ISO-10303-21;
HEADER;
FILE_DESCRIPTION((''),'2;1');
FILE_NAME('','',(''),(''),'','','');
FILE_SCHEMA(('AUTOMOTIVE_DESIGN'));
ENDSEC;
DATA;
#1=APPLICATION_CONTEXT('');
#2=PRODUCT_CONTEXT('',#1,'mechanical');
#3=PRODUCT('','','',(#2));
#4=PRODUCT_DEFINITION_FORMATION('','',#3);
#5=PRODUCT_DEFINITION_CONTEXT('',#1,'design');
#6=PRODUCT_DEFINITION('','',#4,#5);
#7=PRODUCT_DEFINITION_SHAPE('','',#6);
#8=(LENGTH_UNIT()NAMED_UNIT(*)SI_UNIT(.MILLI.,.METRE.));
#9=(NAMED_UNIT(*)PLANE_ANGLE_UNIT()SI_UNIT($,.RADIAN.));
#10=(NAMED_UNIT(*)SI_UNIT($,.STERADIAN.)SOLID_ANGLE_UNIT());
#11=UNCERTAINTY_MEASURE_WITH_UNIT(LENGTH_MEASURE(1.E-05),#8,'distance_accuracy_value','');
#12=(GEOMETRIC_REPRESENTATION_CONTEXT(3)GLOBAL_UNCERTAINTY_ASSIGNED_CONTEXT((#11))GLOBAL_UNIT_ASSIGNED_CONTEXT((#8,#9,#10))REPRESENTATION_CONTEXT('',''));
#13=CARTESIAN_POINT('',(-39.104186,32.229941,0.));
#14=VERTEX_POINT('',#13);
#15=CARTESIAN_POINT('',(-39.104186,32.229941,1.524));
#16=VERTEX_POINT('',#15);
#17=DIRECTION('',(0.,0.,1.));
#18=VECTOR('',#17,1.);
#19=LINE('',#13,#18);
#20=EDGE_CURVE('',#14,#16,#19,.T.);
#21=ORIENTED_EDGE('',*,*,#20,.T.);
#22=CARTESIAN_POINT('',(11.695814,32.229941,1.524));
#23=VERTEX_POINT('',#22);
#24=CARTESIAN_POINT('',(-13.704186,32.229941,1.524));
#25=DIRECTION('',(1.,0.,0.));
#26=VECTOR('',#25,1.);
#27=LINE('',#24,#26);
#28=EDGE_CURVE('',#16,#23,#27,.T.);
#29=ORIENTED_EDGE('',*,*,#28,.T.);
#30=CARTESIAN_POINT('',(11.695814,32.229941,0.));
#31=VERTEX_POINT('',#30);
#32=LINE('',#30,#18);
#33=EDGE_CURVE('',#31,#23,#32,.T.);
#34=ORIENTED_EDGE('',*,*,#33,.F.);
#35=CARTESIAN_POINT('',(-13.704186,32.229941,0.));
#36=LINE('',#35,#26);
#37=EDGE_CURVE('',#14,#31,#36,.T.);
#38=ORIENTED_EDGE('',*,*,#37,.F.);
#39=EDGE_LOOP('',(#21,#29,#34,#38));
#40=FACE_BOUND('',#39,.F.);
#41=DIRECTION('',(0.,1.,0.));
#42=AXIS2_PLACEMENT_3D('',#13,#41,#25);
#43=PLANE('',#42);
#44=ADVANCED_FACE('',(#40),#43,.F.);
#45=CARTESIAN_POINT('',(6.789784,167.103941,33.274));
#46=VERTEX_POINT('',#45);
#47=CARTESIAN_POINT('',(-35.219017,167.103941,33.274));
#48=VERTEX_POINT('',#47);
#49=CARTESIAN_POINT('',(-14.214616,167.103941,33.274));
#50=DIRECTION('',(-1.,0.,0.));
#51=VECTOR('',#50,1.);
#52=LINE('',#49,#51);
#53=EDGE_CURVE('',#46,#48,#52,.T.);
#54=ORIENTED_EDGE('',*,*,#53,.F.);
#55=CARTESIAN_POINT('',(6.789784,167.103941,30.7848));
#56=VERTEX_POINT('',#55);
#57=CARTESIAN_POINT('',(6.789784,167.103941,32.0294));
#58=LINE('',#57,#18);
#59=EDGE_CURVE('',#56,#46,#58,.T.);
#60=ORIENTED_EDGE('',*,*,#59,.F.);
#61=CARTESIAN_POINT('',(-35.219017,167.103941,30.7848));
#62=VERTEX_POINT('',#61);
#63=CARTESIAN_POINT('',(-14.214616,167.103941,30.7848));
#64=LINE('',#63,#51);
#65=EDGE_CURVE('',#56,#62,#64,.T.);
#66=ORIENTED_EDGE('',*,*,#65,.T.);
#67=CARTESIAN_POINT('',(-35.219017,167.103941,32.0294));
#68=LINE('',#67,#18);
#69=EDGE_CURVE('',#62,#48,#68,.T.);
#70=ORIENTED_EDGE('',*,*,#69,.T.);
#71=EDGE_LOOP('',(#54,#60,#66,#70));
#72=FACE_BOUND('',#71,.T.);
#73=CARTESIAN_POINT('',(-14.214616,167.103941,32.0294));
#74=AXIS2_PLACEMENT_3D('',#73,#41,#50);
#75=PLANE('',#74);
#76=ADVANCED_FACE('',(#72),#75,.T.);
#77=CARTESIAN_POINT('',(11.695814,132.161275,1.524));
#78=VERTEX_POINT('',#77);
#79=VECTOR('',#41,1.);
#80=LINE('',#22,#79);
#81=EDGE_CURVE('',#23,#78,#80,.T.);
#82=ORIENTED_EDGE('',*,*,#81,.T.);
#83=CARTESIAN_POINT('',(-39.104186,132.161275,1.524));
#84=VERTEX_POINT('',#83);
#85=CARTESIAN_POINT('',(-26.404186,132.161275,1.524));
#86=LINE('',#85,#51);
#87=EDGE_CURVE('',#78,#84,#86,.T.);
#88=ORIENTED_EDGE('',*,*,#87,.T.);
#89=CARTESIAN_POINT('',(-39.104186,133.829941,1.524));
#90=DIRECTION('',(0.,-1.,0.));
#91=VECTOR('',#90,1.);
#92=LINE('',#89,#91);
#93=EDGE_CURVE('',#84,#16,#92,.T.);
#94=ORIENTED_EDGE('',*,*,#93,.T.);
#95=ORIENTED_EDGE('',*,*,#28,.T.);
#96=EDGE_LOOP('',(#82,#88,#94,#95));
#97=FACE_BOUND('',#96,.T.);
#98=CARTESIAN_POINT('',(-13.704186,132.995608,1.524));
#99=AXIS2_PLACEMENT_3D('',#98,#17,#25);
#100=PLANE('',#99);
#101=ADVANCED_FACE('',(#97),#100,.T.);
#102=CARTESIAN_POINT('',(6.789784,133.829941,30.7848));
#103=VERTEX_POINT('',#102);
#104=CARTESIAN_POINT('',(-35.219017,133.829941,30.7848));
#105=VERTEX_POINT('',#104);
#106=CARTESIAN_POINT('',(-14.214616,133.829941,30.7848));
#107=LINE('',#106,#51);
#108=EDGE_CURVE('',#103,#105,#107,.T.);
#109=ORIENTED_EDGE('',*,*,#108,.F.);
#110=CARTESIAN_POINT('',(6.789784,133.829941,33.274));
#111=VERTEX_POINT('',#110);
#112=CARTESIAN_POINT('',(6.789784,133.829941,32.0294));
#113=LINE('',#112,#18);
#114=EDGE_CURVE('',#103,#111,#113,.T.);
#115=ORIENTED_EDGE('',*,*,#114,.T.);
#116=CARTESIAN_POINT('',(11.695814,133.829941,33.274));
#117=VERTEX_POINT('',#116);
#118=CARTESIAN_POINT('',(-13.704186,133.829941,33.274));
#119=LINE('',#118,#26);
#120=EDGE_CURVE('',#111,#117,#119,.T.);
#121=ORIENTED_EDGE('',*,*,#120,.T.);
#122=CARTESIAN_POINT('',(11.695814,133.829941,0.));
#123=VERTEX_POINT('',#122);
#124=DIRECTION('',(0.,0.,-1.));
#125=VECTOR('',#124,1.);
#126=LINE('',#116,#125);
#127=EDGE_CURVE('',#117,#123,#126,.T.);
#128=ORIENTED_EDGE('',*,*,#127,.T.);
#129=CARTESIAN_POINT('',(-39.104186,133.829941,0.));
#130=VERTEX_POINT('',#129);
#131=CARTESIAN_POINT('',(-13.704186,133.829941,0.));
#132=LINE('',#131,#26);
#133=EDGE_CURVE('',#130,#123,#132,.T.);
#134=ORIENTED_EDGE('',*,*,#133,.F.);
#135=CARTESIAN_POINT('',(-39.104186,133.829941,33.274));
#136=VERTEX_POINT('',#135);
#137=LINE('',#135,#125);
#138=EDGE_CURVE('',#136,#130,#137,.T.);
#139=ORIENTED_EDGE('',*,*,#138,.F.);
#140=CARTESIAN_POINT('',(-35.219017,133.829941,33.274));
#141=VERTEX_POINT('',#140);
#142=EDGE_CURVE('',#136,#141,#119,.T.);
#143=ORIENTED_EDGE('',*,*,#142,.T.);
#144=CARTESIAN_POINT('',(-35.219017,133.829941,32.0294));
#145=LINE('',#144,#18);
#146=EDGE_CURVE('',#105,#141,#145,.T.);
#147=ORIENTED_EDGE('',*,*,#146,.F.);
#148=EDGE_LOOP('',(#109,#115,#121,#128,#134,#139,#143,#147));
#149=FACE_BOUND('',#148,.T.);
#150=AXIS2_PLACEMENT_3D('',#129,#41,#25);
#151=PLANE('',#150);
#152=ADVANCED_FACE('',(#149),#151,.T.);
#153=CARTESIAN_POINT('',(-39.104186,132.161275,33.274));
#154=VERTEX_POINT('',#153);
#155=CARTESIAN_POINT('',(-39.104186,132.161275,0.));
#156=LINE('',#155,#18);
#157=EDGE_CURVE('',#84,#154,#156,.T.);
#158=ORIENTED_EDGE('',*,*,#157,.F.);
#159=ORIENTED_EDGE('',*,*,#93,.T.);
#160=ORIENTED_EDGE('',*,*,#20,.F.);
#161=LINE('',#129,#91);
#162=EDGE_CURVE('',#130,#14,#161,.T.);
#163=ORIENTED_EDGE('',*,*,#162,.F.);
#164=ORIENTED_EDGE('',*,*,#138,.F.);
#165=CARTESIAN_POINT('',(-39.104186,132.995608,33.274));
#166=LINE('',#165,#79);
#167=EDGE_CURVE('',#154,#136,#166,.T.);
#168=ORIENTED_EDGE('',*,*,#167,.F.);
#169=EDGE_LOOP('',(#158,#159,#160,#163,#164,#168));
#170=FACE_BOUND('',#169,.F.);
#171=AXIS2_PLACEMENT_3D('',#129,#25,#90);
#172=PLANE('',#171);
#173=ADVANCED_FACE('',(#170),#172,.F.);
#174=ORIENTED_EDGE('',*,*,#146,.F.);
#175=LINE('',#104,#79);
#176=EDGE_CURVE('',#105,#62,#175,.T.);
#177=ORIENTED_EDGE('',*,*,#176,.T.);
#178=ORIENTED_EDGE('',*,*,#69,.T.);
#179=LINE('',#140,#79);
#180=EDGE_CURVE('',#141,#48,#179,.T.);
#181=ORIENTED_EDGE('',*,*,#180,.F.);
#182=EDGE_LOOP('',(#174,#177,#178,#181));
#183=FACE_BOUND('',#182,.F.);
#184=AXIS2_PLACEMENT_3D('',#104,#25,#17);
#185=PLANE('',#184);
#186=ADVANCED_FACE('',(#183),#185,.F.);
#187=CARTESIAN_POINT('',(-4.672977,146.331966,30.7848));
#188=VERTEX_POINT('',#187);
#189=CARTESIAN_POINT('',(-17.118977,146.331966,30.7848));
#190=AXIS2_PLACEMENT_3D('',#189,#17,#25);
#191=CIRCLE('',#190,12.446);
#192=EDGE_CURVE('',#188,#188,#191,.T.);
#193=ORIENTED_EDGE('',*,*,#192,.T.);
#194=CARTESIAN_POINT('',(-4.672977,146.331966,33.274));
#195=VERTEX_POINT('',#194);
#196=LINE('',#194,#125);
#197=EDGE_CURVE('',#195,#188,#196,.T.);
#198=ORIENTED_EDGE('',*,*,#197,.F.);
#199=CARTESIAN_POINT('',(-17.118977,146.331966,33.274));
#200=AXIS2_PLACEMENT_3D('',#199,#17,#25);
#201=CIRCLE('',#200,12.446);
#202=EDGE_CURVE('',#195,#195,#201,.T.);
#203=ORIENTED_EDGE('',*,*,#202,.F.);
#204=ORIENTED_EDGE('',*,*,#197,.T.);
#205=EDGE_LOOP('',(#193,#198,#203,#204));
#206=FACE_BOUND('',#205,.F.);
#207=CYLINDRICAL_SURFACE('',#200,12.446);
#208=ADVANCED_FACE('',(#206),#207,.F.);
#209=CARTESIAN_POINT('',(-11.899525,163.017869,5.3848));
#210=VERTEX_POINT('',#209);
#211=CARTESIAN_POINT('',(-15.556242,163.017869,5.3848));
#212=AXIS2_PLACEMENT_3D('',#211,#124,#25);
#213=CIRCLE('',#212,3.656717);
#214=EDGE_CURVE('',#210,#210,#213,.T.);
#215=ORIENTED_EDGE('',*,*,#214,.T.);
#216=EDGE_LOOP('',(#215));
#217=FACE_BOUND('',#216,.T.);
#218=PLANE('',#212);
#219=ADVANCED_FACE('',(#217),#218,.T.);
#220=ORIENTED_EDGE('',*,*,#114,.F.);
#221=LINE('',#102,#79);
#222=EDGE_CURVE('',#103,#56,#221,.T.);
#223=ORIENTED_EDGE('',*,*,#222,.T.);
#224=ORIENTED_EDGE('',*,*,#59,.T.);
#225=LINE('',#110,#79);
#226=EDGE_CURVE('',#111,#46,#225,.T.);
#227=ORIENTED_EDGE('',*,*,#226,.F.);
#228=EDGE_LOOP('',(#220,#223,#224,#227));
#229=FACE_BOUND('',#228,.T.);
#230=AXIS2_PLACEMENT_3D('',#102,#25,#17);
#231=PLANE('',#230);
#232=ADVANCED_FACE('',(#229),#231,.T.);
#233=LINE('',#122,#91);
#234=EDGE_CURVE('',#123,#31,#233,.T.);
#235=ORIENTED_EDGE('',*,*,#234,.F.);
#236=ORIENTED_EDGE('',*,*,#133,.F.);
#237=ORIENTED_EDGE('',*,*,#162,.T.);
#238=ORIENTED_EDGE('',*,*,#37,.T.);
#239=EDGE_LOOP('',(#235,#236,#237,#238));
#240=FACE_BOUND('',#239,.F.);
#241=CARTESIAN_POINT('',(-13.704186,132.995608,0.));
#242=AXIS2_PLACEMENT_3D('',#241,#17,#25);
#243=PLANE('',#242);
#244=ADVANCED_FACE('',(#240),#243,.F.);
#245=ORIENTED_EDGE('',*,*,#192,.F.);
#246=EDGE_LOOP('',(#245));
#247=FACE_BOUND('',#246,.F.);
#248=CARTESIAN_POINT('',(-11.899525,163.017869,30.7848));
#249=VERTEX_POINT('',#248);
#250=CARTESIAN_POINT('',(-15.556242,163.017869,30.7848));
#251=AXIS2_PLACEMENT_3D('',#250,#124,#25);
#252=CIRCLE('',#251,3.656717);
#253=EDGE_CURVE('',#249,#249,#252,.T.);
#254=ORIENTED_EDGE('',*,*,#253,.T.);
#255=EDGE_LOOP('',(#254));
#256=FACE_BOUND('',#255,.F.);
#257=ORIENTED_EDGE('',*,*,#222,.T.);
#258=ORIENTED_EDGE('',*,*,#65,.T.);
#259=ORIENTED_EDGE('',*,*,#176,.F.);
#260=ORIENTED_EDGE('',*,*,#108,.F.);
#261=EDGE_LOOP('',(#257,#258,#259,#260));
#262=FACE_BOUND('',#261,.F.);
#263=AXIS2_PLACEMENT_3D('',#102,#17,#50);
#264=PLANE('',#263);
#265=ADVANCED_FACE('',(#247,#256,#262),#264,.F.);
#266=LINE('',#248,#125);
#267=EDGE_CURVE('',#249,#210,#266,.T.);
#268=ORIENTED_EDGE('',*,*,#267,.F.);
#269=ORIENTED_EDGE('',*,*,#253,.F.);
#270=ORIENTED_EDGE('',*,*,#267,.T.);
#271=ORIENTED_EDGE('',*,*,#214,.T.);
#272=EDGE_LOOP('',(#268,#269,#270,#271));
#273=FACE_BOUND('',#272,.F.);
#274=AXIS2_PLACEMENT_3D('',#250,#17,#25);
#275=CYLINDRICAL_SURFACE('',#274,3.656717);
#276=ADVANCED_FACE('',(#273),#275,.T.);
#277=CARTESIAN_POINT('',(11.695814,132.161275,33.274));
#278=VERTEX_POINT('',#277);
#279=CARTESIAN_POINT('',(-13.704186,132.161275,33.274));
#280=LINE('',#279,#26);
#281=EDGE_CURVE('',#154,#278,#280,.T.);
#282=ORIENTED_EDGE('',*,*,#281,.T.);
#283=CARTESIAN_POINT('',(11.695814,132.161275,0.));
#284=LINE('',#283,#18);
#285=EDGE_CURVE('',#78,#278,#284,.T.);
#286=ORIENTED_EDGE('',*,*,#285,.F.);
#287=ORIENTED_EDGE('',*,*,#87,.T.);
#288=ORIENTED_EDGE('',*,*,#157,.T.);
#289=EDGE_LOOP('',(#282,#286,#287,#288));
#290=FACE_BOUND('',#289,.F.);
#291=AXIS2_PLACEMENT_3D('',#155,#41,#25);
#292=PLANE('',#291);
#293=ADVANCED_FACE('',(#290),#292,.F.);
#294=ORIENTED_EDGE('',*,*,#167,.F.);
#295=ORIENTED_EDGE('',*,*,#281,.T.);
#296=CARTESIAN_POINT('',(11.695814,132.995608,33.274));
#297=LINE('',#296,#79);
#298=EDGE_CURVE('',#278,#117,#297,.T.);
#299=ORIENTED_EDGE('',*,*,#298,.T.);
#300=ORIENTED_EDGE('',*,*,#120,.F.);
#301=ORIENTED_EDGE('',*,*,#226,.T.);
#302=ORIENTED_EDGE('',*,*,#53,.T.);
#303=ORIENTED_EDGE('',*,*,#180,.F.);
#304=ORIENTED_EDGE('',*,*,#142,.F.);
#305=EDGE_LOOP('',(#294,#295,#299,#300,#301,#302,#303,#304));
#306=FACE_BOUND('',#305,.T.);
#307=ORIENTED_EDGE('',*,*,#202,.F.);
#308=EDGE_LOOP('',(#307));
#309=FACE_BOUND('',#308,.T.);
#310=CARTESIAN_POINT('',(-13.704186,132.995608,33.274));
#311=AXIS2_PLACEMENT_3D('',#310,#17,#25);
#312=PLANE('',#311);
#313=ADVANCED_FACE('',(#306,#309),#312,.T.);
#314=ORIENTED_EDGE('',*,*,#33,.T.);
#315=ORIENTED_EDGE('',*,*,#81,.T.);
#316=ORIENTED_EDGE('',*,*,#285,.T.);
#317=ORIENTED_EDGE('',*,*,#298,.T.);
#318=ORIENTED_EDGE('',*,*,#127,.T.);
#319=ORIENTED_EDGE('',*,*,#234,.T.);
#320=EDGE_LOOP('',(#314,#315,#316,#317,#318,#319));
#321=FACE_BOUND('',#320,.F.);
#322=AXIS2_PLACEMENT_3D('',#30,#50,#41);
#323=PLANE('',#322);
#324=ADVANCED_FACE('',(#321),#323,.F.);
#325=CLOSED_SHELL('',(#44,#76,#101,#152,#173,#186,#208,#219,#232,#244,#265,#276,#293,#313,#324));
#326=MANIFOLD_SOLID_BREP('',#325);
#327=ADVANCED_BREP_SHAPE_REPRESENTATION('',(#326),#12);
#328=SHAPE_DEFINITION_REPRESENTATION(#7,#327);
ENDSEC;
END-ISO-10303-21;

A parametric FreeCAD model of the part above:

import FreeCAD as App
import Part
import Sketcher
from FreeCAD import Vector
Q = App.Units.Quantity


def add_polygon(sketch, points):
    """Adds a closed chain of lines whose ends are joined by coincident constraints."""
    first, n = sketch.GeometryCount, len(points)
    for a, b in zip(points, points[1:] + points[:1]):
        sketch.addGeometry(Part.LineSegment(App.Vector(*a, 0), App.Vector(*b, 0)), False)
    for i in range(n):
        sketch.addConstraint(Sketcher.Constraint("Coincident", first + i, 2, first + (i + 1) % n, 1))

doc = App.newDocument("Part")
params = doc.addObject("Spreadsheet::Sheet", "Params")
for row, (alias, value) in enumerate([
    ("sketch1_width", "2 in"),
    ("sketch1_height", "4 in"),
    ("pad1_length", "0.06 in"),
    ("sketch2_width", "2 in"),
    ("pad2_length", "1.31 in"),
    ("sketch3_height", "0.098 in"),
    ("pad3_length", "1.31 in"),
    ("sketch4_diameter", "0.98 in"),
    ("pocket1_length", "1 in"),
    ("pad4_length", "1 in"),
], start=1):
    params.set(f"A{row}", alias)
    params.set(f"B{row}", "=" + value)
    params.setAlias(f"B{row}", alias)

body = doc.addObject("PartDesign::Body", "Body")

sketch1 = doc.addObject("Sketcher::SketchObject", "Sketch")
body.addObject(sketch1)
sketch1.AttachmentSupport = (doc.XY_Plane, [""])
sketch1.MapMode = "FlatFace"
add_polygon(sketch1, [(-39.104186, 133.829941), (-39.104186, 32.229941), (11.695814, 32.229941), (11.695814, 133.829941)])
sketch1.addConstraint([
    Sketcher.Constraint("Vertical", 0),
    Sketcher.Constraint("Horizontal", 1),
    Sketcher.Constraint("Vertical", 2),
    Sketcher.Constraint("Horizontal", 3),
    Sketcher.Constraint("DistanceX", 1, 1, 1, 2, Q("2 in")),
    Sketcher.Constraint("DistanceY", 0, 2, 0, 1, Q("4 in")),
    Sketcher.Constraint("DistanceY", -1, 1, 0, 2, 32.229941),
    Sketcher.Constraint("DistanceX", 0, 2, -1, 1, 39.104186),
])
sketch1.setExpression("Constraints[8]", "Params.sketch1_width")
sketch1.setExpression("Constraints[9]", "Params.sketch1_height")
pad1 = doc.addObject("PartDesign::Pad", "Pad")
body.addObject(pad1)
pad1.Profile = sketch1
pad1.setExpression("Length", "Params.pad1_length")

sketch2 = doc.addObject("Sketcher::SketchObject", "Sketch001")
body.addObject(sketch2)
sketch2.AttachmentSupport = (doc.XY_Plane, [""])
sketch2.MapMode = "FlatFace"
add_polygon(sketch2, [(-39.104186, 133.829941), (-39.104186, 132.161275), (11.695814, 132.161275), (11.695814, 133.829941)])
sketch2.addConstraint([
    Sketcher.Constraint("Vertical", 0),
    Sketcher.Constraint("Horizontal", 1),
    Sketcher.Constraint("Vertical", 2),
    Sketcher.Constraint("Horizontal", 3),
    Sketcher.Constraint("DistanceX", 1, 1, 1, 2, Q("2 in")),
    Sketcher.Constraint("DistanceY", -1, 1, 0, 2, Q("5.2031998 in")),
    Sketcher.Constraint("DistanceY", 0, 2, 0, 1, 1.668666),
    Sketcher.Constraint("DistanceX", 0, 2, -1, 1, 39.104186),
])
sketch2.setExpression("Constraints[8]", "Params.sketch2_width")
pad2 = doc.addObject("PartDesign::Pad", "Pad001")
body.addObject(pad2)
pad2.Profile = sketch2
pad2.setExpression("Length", "Params.pad2_length")

sketch3 = doc.addObject("Sketcher::SketchObject", "Sketch002")
body.addObject(sketch3)
sketch3.AttachmentSupport = (doc.XZ_Plane, [""])
sketch3.MapMode = "FlatFace"
sketch3.AttachmentOffset = App.Placement(Vector(0, 0, -133.829941), App.Rotation())
add_polygon(sketch3, [(6.789784, 33.274), (6.789784, 30.7848), (-35.219017, 30.7848), (-35.219017, 33.274)])
sketch3.addConstraint([
    Sketcher.Constraint("Vertical", 0),
    Sketcher.Constraint("Horizontal", 1),
    Sketcher.Constraint("Vertical", 2),
    Sketcher.Constraint("Horizontal", 3),
    Sketcher.Constraint("DistanceY", 0, 2, 0, 1, Q("0.098 in")),
    Sketcher.Constraint("DistanceY", -1, 1, 2, 2, Q("1.31 in")),
    Sketcher.Constraint("DistanceX", 1, 2, 1, 1, 42.008801),
    Sketcher.Constraint("DistanceX", -1, 1, 0, 2, 6.789784),
])
sketch3.setExpression("Constraints[8]", "Params.sketch3_height")
pad3 = doc.addObject("PartDesign::Pad", "Pad002")
body.addObject(pad3)
pad3.Profile = sketch3
pad3.setExpression("Length", "Params.pad3_length")
pad3.Reversed = True

sketch4 = doc.addObject("Sketcher::SketchObject", "Sketch003")
body.addObject(sketch4)
sketch4.AttachmentSupport = (doc.XY_Plane, [""])
sketch4.MapMode = "FlatFace"
sketch4.AttachmentOffset = App.Placement(Vector(0, 0, 1.31 * 25.4), App.Rotation())
sketch4.addGeometry(Part.Circle(Vector(-17.118977, 146.331966, 0), Vector(0, 0, 1), 12.446), False)
sketch4.addConstraint([
    Sketcher.Constraint("Diameter", 0, Q("0.98 in")),
    Sketcher.Constraint("DistanceX", 0, 3, -1, 1, 17.118977),
    Sketcher.Constraint("DistanceY", -1, 1, 0, 3, 146.331966),
])
sketch4.setExpression("Constraints[0]", "Params.sketch4_diameter")
pocket1 = doc.addObject("PartDesign::Pocket", "Pocket")
body.addObject(pocket1)
pocket1.Profile = sketch4
pocket1.setExpression("Length", "Params.pocket1_length")

sketch5 = doc.addObject("Sketcher::SketchObject", "Sketch004")
body.addObject(sketch5)
sketch5.AttachmentSupport = (doc.XY_Plane, [""])
sketch5.MapMode = "FlatFace"
sketch5.AttachmentOffset = App.Placement(Vector(0, 0, 1.212 * 25.4), App.Rotation())
sketch5.addGeometry(Part.Circle(Vector(-15.556242, 163.017869, 0), Vector(0, 0, 1), 3.656717), False)
sketch5.addConstraint([
    Sketcher.Constraint("Diameter", 0, 7.313434),
    Sketcher.Constraint("DistanceX", 0, 3, -1, 1, 15.556242),
    Sketcher.Constraint("DistanceY", -1, 1, 0, 3, 163.017869),
])
pad4 = doc.addObject("PartDesign::Pad", "Pad003")
body.addObject(pad4)
pad4.Profile = sketch5
pad4.setExpression("Length", "Params.pad4_length")
pad4.Reversed = True

doc.recompute()
